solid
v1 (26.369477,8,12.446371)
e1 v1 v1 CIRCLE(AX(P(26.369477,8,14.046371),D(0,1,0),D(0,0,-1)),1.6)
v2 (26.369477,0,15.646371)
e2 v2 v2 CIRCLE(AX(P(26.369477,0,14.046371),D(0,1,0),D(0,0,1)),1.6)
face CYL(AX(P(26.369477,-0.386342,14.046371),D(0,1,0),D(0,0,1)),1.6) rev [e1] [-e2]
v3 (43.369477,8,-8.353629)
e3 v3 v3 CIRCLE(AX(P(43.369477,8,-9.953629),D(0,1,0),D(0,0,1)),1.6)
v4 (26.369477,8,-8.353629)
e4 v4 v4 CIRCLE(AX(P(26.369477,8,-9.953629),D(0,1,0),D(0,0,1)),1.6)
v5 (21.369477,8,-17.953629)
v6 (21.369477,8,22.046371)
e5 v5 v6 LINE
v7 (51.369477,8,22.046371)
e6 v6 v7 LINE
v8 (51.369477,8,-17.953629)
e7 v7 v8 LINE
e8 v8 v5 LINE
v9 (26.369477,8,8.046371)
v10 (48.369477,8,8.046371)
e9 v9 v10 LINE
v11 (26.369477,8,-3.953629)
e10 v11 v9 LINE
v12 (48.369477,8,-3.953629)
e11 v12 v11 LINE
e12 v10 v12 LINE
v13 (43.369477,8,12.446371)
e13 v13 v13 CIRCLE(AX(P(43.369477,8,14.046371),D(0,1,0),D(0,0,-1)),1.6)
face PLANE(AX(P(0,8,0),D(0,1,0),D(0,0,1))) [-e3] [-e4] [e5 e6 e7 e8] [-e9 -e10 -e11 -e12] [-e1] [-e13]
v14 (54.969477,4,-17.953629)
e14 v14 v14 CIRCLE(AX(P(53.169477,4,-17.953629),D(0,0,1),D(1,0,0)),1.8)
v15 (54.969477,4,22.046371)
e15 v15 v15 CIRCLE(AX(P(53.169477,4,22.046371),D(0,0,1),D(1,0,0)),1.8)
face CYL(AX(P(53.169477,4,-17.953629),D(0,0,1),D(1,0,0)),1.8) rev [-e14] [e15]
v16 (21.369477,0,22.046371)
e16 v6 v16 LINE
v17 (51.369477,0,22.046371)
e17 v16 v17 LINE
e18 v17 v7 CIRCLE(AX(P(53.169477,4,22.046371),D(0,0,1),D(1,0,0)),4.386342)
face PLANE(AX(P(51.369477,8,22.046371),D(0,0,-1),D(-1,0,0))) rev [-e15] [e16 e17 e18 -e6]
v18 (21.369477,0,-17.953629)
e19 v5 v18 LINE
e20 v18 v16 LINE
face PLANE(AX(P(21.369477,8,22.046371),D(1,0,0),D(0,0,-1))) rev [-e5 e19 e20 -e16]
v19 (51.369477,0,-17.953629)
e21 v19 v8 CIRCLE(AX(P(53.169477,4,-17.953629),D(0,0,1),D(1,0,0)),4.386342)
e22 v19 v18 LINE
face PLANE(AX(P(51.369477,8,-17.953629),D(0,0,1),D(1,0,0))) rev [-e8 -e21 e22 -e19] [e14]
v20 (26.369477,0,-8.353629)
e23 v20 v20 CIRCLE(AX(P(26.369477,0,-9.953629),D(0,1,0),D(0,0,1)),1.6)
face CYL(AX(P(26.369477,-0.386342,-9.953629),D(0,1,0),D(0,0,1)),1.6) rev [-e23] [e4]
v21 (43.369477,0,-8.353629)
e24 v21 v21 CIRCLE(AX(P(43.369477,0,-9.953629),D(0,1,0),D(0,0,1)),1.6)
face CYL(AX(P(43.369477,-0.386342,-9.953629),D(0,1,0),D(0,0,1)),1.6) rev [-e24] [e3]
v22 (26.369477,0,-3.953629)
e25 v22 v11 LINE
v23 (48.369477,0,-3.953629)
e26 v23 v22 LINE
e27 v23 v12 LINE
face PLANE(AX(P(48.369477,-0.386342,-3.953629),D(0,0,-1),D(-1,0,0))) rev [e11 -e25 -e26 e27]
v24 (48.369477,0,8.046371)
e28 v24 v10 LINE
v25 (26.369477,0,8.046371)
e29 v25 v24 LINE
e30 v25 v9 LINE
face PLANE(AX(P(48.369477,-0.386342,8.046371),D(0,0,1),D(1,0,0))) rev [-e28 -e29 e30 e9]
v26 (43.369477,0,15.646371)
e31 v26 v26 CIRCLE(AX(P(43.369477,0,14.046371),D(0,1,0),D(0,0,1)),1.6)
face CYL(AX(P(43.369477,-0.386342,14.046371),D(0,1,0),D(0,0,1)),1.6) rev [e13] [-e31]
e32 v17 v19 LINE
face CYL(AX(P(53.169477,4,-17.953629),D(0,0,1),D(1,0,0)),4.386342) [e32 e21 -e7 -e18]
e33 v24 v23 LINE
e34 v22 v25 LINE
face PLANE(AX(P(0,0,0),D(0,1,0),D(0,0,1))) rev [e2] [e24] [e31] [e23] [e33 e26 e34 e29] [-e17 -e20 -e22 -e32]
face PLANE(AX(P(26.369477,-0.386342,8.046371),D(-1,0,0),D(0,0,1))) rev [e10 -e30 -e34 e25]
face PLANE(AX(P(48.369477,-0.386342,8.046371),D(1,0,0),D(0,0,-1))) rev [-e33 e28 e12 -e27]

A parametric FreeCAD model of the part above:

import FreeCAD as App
import Part
import Sketcher
Q = App.Units.Quantity

doc = App.newDocument("Part")
params = doc.addObject("Spreadsheet::Sheet", "Params")
for row, (alias, value) in enumerate([
    ("sketch1_width", "30 mm"),
    ("sketch1_height", "40 mm"),
    ("pad1_length", "8 mm"),
    ("sketch2_diameter", "3.6 mm"),
    ("pad2_length", "40 mm"),
    ("sketch3_diameter", "3.2 mm"),
    ("sketch4_width", "22 mm"),
    ("sketch4_height", "12 mm"),
], start=1):
    params.set(f"A{row}", alias)
    params.set(f"B{row}", "=" + value)
    params.setAlias(f"B{row}", alias)

body = doc.addObject("PartDesign::Body", "Body")

# Sketch on XZ plane
sketch1 = body.newObject("Sketcher::SketchObject", "Sketch")
sketch1.AttachmentSupport = (doc.getObject("XZ_Plane"), [""])
sketch1.MapMode = "FlatFace"
sketch1.addGeometry(Part.LineSegment(App.Vector(21.369477, -17.953629, 0), App.Vector(21.369477, 22.046371, 0)), False)
sketch1.addGeometry(Part.LineSegment(App.Vector(21.369477, 22.046371, 0), App.Vector(51.369477, 22.046371, 0)), False)
sketch1.addGeometry(Part.LineSegment(App.Vector(51.369477, 22.046371, 0), App.Vector(51.369477, -17.953629, 0)), False)
sketch1.addGeometry(Part.LineSegment(App.Vector(51.369477, -17.953629, 0), App.Vector(21.369477, -17.953629, 0)), False)
sketch1.addConstraint(Sketcher.Constraint("Coincident", 0, 2, 1, 1))
sketch1.addConstraint(Sketcher.Constraint("Coincident", 1, 2, 2, 1))
sketch1.addConstraint(Sketcher.Constraint("Coincident", 2, 2, 3, 1))
sketch1.addConstraint(Sketcher.Constraint("Coincident", 3, 2, 0, 1))
sketch1.addConstraint(Sketcher.Constraint("Vertical", 0))
sketch1.addConstraint(Sketcher.Constraint("Horizontal", 1))
sketch1.addConstraint(Sketcher.Constraint("Vertical", 2))
sketch1.addConstraint(Sketcher.Constraint("Horizontal", 3))
sketch1.addConstraint(Sketcher.Constraint("DistanceX", 1, 1, 1, 2, Q("30 mm")))
sketch1.addConstraint(Sketcher.Constraint("DistanceY", 0, 1, 0, 2, Q("40 mm")))
sketch1.addConstraint(Sketcher.Constraint("DistanceY", -1, 1, 0, 2, Q("22.046371 mm")))
sketch1.addConstraint(Sketcher.Constraint("DistanceX", -1, 1, 0, 2, Q("21.369477 mm")))
sketch1.setExpression("Constraints[8]", "Params.sketch1_width")
sketch1.setExpression("Constraints[9]", "Params.sketch1_height")
pad1 = body.newObject("PartDesign::Pad", "Pad")
pad1.Profile = sketch1
pad1.setExpression("Length", "Params.pad1_length")
pad1.Reversed = True

# Sketch on XY plane
sketch2 = body.newObject("Sketcher::SketchObject", "Sketch001")
sketch2.AttachmentSupport = (doc.getObject("XY_Plane"), [""])
sketch2.MapMode = "FlatFace"
sketch2.AttachmentOffset = App.Placement(App.Vector(0, 0, 22.046371), App.Rotation())
sketch2.addGeometry(Part.Circle(App.Vector(53.169477, 4, 0), App.Vector(0, 0, 1), 4.386342), False)
sketch2.addGeometry(Part.Circle(App.Vector(53.169477, 4, 0), App.Vector(0, 0, 1), 1.8), False)
sketch2.addConstraint(Sketcher.Constraint("Coincident", 1, 3, 0, 3))
sketch2.addConstraint(Sketcher.Constraint("Diameter", 1, Q("3.6 mm")))
sketch2.addConstraint(Sketcher.Constraint("DistanceY", -1, 1, 0, 3, Q("4 mm")))
sketch2.addConstraint(Sketcher.Constraint("Diameter", 0, Q("8.772685 mm")))
sketch2.addConstraint(Sketcher.Constraint("DistanceX", -1, 1, 0, 3, Q("53.169477 mm")))
sketch2.setExpression("Constraints[1]", "Params.sketch2_diameter")
pad2 = body.newObject("PartDesign::Pad", "Pad001")
pad2.Profile = sketch2
pad2.setExpression("Length", "Params.pad2_length")
pad2.Reversed = True

# Sketch on XZ plane
sketch3 = body.newObject("Sketcher::SketchObject", "Sketch002")
sketch3.AttachmentSupport = (doc.getObject("XZ_Plane"), [""])
sketch3.MapMode = "FlatFace"
sketch3.AttachmentOffset = App.Placement(App.Vector(0, 0, -8), App.Rotation())
sketch3.addGeometry(Part.Circle(App.Vector(26.369477, -9.953629, 0), App.Vector(0, 0, 1), 1.6), False)
sketch3.addGeometry(Part.Circle(App.Vector(43.369477, -9.953629, 0), App.Vector(0, 0, 1), 1.6), False)
sketch3.addGeometry(Part.Circle(App.Vector(43.369477, 14.046371, 0), App.Vector(0, 0, 1), 1.6), False)
sketch3.addGeometry(Part.Circle(App.Vector(26.369477, 14.046371, 0), App.Vector(0, 0, 1), 1.6), False)
sketch3.addConstraint(Sketcher.Constraint("Equal", 0, 1))
sketch3.addConstraint(Sketcher.Constraint("Equal", 1, 2))
sketch3.addConstraint(Sketcher.Constraint("Equal", 2, 3))
sketch3.addConstraint(Sketcher.Constraint("Horizontal", 0, 3, 1, 3))
sketch3.addConstraint(Sketcher.Constraint("Horizontal", 2, 3, 3, 3))
sketch3.addConstraint(Sketcher.Constraint("Vertical", 1, 3, 2, 3))
sketch3.addConstraint(Sketcher.Constraint("Vertical", 0, 3, 3, 3))
sketch3.addConstraint(Sketcher.Constraint("Diameter", 0, Q("3.2 mm")))
sketch3.addConstraint(Sketcher.Constraint("DistanceX", 0, 3, 1, 3, Q("17 mm")))
sketch3.addConstraint(Sketcher.Constraint("DistanceY", 1, 3, 2, 3, Q("24 mm")))
sketch3.addConstraint(Sketcher.Constraint("DistanceY", 0, 3, -1, 1, Q("9.953629 mm")))
sketch3.addConstraint(Sketcher.Constraint("DistanceX", -1, 1, 0, 3, Q("26.369477 mm")))
sketch3.setExpression("Constraints[7]", "Params.sketch3_diameter")
pocket1 = body.newObject("PartDesign::Pocket", "Pocket")
pocket1.Profile = sketch3
pocket1.Type = "ThroughAll"
pocket1.Reversed = True

# Sketch on XZ plane
sketch4 = body.newObject("Sketcher::SketchObject", "Sketch003")
sketch4.AttachmentSupport = (doc.getObject("XZ_Plane"), [""])
sketch4.MapMode = "FlatFace"
sketch4.AttachmentOffset = App.Placement(App.Vector(0, 0, -8), App.Rotation())
sketch4.addGeometry(Part.LineSegment(App.Vector(26.369477, -3.953629, 0), App.Vector(26.369477, 8.046371, 0)), False)
sketch4.addGeometry(Part.LineSegment(App.Vector(26.369477, 8.046371, 0), App.Vector(48.369477, 8.046371, 0)), False)
sketch4.addGeometry(Part.LineSegment(App.Vector(48.369477, 8.046371, 0), App.Vector(48.369477, -3.953629, 0)), False)
sketch4.addGeometry(Part.LineSegment(App.Vector(48.369477, -3.953629, 0), App.Vector(26.369477, -3.953629, 0)), False)
sketch4.addConstraint(Sketcher.Constraint("Coincident", 0, 2, 1, 1))
sketch4.addConstraint(Sketcher.Constraint("Coincident", 1, 2, 2, 1))
sketch4.addConstraint(Sketcher.Constraint("Coincident", 2, 2, 3, 1))
sketch4.addConstraint(Sketcher.Constraint("Coincident", 3, 2, 0, 1))
sketch4.addConstraint(Sketcher.Constraint("Vertical", 0))
sketch4.addConstraint(Sketcher.Constraint("Horizontal", 1))
sketch4.addConstraint(Sketcher.Constraint("Vertical", 2))
sketch4.addConstraint(Sketcher.Constraint("Horizontal", 3))
sketch4.addConstraint(Sketcher.Constraint("DistanceX", 1, 1, 1, 2, Q("22 mm")))
sketch4.addConstraint(Sketcher.Constraint("DistanceY", 0, 1, 0, 2, Q("12 mm")))
sketch4.addConstraint(Sketcher.Constraint("DistanceY", -1, 1, 0, 2, Q("8.046371 mm")))
sketch4.addConstraint(Sketcher.Constraint("DistanceX", -1, 1, 0, 2, Q("26.369477 mm")))
sketch4.setExpression("Constraints[8]", "Params.sketch4_width")
sketch4.setExpression("Constraints[9]", "Params.sketch4_height")
pocket2 = body.newObject("PartDesign::Pocket", "Pocket001")
pocket2.Profile = sketch4
pocket2.Type = "ThroughAll"
pocket2.Reversed = True

doc.recompute()
